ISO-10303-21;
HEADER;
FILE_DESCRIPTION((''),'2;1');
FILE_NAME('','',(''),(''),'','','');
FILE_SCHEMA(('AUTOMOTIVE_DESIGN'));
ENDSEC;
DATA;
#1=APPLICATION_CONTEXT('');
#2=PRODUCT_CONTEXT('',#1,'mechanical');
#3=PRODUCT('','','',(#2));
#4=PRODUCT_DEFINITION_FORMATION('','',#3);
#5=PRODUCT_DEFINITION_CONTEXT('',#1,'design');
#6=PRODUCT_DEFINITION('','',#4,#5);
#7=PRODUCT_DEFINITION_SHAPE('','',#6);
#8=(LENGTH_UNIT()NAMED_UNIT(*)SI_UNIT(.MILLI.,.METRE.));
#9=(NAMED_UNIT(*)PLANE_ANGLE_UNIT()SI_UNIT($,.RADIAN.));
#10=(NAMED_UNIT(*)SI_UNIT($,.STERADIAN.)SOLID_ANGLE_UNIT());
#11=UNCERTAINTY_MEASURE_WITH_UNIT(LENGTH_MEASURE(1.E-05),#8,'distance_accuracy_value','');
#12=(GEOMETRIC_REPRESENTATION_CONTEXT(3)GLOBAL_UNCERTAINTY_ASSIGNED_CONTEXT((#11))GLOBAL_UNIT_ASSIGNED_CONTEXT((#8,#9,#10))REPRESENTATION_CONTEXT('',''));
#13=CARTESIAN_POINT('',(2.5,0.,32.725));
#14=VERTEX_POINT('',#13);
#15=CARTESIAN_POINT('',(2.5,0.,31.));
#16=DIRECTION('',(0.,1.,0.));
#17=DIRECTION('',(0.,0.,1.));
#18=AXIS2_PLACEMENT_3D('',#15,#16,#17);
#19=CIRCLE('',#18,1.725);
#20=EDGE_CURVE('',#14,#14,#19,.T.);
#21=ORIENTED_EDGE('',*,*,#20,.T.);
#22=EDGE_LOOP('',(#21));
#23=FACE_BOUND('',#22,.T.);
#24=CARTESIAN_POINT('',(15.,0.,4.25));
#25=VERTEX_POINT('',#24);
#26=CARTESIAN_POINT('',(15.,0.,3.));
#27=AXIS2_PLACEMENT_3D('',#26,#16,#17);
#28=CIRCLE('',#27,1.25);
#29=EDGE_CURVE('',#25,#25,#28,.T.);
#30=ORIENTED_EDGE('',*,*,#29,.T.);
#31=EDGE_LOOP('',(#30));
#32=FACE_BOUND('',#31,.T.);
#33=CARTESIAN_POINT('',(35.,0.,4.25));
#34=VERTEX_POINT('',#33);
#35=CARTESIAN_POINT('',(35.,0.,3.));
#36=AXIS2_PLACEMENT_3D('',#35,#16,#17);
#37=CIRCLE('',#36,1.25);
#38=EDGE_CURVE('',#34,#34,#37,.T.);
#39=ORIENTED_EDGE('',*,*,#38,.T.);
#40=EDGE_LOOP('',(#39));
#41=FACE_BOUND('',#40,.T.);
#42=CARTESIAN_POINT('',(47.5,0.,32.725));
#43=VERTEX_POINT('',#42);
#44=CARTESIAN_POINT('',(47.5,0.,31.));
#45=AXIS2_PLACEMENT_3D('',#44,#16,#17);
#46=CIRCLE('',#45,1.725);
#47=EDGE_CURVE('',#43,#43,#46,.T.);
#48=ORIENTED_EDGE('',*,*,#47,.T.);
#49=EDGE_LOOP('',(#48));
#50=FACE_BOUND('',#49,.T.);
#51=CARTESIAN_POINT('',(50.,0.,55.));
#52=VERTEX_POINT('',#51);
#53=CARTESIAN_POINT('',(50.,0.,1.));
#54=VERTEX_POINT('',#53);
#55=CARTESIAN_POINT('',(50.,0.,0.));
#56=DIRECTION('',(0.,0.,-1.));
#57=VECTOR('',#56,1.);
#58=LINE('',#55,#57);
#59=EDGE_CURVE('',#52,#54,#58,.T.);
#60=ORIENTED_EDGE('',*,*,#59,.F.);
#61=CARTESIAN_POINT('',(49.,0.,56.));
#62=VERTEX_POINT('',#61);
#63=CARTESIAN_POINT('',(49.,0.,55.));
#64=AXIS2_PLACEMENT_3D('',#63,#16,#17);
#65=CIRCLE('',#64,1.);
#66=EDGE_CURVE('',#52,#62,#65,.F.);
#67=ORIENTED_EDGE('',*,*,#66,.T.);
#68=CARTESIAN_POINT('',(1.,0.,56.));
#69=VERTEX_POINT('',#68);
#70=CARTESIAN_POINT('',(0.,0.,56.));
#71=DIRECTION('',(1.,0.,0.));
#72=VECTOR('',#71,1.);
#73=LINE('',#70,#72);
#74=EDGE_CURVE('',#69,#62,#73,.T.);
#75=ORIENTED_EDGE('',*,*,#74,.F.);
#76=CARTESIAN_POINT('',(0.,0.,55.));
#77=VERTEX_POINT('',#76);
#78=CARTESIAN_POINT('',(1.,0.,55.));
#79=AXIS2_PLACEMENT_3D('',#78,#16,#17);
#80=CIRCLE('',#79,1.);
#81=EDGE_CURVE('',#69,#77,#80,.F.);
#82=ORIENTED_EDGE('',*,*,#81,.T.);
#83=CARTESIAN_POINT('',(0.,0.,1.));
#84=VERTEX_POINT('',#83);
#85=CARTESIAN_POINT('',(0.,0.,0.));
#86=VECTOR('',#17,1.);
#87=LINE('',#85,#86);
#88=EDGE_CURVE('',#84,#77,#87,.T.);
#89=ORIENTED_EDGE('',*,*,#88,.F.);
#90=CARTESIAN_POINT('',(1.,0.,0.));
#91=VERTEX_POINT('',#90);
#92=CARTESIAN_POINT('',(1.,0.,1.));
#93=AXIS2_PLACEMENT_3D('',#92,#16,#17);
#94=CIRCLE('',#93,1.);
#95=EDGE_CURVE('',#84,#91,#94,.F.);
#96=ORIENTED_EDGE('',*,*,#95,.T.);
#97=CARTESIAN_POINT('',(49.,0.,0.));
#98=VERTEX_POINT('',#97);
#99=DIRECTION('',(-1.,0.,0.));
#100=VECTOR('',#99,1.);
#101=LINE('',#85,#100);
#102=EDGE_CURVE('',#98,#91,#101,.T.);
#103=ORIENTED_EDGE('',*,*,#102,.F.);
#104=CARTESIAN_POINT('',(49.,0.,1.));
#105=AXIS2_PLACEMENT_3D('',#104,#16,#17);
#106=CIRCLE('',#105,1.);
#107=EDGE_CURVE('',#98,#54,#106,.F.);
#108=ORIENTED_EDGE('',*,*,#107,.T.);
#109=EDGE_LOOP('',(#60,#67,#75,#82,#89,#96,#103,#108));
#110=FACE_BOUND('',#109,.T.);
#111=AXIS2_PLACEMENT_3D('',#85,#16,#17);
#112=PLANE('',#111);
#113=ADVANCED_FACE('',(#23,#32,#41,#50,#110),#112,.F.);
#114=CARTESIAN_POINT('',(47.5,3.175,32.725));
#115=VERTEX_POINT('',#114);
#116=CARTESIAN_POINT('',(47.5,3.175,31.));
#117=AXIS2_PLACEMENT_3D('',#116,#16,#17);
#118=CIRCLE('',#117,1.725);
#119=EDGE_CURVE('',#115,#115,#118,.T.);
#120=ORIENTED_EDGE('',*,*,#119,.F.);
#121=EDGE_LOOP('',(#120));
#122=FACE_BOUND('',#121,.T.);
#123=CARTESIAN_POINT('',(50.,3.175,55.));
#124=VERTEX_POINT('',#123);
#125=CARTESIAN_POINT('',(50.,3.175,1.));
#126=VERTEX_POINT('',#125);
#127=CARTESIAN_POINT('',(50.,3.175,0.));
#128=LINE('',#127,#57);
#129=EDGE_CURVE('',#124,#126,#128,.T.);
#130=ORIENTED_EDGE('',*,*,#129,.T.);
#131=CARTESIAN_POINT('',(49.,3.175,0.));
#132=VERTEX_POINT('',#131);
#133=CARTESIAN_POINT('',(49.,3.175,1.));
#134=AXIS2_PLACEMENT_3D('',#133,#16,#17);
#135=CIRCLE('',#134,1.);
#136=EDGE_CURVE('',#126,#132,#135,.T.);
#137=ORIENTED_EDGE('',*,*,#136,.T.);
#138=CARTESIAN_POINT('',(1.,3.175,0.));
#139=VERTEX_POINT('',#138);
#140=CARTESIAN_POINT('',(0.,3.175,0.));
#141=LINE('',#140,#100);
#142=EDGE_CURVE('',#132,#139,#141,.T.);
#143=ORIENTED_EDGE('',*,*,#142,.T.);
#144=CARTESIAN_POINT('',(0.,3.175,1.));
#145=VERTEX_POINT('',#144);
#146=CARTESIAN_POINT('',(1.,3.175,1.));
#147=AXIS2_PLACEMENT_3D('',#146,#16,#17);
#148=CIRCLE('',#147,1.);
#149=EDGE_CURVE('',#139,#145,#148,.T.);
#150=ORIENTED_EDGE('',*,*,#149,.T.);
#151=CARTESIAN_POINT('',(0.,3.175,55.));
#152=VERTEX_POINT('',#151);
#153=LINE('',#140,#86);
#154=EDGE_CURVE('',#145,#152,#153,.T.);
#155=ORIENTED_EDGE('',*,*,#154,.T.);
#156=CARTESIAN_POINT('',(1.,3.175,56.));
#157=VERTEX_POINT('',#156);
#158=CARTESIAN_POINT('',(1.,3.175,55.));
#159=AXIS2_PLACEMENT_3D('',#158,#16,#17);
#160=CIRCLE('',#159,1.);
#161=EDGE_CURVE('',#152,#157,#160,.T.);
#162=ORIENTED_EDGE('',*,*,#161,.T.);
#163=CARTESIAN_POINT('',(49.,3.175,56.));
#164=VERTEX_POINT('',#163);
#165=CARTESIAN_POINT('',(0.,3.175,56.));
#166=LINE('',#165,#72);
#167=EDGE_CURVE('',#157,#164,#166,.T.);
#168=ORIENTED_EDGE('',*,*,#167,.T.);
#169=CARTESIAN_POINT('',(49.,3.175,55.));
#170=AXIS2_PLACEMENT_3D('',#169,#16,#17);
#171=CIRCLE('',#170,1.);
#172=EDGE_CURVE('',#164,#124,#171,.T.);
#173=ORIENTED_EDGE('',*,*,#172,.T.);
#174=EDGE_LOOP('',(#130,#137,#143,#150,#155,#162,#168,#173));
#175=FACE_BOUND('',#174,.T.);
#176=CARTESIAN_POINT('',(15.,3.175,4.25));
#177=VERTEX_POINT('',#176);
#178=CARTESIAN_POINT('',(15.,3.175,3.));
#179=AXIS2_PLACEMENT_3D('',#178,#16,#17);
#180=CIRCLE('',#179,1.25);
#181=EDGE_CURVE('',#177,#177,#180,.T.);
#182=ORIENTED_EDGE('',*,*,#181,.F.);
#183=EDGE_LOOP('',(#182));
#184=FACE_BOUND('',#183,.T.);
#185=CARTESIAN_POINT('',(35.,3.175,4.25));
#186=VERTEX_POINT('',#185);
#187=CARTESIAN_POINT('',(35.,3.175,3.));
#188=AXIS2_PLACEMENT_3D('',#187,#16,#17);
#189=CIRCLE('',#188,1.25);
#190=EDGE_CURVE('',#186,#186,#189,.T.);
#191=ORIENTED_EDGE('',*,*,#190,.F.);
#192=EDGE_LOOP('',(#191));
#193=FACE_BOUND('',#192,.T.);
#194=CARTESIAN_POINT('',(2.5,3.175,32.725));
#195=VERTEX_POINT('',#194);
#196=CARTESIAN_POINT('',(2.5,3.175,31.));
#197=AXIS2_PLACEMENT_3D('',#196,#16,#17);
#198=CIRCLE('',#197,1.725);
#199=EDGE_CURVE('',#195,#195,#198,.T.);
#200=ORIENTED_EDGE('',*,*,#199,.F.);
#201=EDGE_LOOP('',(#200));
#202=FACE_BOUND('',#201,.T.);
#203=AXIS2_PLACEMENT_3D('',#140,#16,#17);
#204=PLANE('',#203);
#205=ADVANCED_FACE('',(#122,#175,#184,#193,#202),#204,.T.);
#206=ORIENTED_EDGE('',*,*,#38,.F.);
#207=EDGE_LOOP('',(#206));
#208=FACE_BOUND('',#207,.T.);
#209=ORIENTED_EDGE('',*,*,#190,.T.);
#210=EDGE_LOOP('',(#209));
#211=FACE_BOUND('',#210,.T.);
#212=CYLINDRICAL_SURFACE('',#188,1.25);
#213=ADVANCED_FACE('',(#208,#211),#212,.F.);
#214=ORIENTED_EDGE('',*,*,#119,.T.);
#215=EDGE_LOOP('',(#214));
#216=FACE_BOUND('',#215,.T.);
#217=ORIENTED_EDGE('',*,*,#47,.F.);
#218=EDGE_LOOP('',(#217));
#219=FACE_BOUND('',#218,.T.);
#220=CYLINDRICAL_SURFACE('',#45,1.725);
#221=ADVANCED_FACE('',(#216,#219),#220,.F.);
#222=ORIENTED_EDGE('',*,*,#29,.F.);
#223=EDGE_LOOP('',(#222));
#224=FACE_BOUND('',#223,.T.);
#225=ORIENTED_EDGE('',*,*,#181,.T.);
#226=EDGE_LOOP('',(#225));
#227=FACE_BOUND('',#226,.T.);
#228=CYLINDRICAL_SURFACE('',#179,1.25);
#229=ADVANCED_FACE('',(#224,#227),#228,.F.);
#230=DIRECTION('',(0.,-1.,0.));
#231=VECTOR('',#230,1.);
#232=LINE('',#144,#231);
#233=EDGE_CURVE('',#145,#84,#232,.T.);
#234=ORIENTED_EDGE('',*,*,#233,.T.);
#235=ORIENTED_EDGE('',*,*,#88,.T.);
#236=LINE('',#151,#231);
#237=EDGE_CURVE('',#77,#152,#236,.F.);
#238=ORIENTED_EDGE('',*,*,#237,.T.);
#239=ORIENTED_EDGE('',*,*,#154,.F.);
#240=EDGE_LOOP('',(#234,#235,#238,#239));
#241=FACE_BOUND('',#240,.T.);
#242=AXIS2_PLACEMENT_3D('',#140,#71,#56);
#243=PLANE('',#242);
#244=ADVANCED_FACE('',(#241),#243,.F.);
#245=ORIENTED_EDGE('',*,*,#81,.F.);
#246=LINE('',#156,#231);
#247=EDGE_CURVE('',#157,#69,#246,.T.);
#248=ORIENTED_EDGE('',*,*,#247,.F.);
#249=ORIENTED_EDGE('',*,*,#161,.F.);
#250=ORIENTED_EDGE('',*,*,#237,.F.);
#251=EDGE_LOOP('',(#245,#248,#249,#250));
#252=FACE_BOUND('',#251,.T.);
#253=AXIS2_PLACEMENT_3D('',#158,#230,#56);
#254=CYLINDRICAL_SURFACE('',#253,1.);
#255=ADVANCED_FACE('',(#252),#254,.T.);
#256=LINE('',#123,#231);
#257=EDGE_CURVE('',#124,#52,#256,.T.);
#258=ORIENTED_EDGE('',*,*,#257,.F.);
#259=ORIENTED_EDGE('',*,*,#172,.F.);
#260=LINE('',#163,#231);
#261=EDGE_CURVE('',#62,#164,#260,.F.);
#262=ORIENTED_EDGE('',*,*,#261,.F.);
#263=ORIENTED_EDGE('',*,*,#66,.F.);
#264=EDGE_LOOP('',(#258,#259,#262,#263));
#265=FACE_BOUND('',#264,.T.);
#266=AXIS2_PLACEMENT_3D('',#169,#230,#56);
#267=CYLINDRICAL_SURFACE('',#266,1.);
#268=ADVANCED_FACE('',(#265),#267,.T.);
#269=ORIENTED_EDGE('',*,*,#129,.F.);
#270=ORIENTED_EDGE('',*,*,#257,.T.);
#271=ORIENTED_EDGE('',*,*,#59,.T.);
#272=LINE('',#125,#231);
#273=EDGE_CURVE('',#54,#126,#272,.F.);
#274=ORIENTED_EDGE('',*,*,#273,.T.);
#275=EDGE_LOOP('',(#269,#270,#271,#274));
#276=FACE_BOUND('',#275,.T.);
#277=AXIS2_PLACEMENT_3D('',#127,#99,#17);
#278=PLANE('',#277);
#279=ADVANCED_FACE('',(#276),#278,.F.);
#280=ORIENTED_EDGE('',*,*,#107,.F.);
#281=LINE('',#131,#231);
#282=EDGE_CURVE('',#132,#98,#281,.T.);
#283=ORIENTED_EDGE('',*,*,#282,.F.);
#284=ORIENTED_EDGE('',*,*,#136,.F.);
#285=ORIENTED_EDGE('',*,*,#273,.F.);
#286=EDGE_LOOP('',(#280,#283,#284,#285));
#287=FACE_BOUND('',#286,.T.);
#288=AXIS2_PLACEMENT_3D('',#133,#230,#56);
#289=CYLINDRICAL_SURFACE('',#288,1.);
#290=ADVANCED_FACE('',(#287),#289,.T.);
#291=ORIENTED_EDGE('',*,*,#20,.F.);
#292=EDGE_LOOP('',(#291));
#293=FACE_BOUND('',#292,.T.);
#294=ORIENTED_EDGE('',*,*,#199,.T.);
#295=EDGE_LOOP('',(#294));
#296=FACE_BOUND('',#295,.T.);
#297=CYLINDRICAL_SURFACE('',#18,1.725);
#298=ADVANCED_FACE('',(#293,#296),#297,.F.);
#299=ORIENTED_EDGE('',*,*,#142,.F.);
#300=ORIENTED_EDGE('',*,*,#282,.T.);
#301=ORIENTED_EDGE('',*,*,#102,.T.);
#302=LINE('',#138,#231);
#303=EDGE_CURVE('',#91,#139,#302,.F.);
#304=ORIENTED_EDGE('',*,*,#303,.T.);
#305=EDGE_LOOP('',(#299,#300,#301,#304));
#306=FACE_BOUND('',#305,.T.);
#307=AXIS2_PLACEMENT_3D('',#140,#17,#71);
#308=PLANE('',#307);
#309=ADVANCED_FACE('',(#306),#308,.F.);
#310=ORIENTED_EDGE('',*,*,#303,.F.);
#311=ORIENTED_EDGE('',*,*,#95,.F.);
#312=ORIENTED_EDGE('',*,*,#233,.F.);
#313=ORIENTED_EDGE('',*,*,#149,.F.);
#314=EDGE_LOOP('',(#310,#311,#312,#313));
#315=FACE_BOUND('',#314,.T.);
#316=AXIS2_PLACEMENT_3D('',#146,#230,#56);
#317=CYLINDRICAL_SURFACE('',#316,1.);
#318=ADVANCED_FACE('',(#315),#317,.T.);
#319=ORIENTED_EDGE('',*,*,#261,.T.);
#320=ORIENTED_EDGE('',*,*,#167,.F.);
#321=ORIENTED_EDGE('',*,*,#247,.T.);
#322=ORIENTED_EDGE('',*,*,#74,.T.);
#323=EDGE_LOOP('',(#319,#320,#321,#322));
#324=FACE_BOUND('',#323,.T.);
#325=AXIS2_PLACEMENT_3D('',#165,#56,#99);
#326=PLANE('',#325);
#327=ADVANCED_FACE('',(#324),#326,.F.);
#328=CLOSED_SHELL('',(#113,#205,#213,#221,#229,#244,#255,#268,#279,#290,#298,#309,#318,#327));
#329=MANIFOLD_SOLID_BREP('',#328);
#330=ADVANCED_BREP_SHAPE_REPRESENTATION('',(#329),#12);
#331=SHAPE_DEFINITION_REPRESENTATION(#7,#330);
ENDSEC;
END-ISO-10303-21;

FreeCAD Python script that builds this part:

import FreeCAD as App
import Part
import Sketcher

V = App.Vector


def edges_at(feature, points):
    """Names of the edges that pass closest to the given points."""
    edges = feature.Shape.Edges
    near = lambda p: min(range(len(edges)), key=lambda i: edges[i].distToShape(Part.Vertex(*p))[0])
    return sorted({f"Edge{near(p) + 1}" for p in points})

doc = App.newDocument("Part")
params = doc.addObject("Spreadsheet::Sheet", "Params")
for row, (alias, value) in enumerate([
    ("sketch1_diameter", "2.2 mm"),
    ("sketch1_width", "50 mm"),
    ("sketch1_height", "56 mm"),
    ("pad1_length", "3.175 mm"),
    ("fillet_radius", "1 mm"),
    ("sketch2_diameter", "2.5 mm"),
    ("hole_diameter", "2.5 mm"),
    ("sketch3_diameter", "3.45 mm"),
], start=1):
    params.set(f"A{row}", alias)
    params.set(f"B{row}", "=" + value)
    params.setAlias(f"B{row}", alias)

body = doc.addObject("PartDesign::Body", "Body")

# Sketch on XZ plane
sketch1 = doc.addObject("Sketcher::SketchObject", "Sketch")
body.addObject(sketch1)
sketch1.AttachmentSupport = (doc.XZ_Plane, [""])
sketch1.MapMode = "FlatFace"
sketch1.addGeometry(Part.LineSegment(V(0, 0, 0), V(0, 56, 0)), False)
sketch1.addGeometry(Part.LineSegment(V(0, 56, 0), V(50, 56, 0)), False)
sketch1.addGeometry(Part.LineSegment(V(50, 56, 0), V(50, 0, 0)), False)
sketch1.addGeometry(Part.LineSegment(V(50, 0, 0), V(0, 0, 0)), False)
sketch1.addGeometry(Part.Circle(V(15, 3, 0), V(0, 0, 1), 1.1), False)
sketch1.addGeometry(Part.Circle(V(35, 3, 0), V(0, 0, 1), 1.1), False)
sketch1.addConstraint(Sketcher.Constraint("Coincident", 0, 2, 1, 1))
sketch1.addConstraint(Sketcher.Constraint("Coincident", 1, 2, 2, 1))
sketch1.addConstraint(Sketcher.Constraint("Coincident", 2, 2, 3, 1))
sketch1.addConstraint(Sketcher.Constraint("Coincident", 3, 2, 0, 1))
sketch1.addConstraint(Sketcher.Constraint("Vertical", 0))
sketch1.addConstraint(Sketcher.Constraint("Horizontal", 1))
sketch1.addConstraint(Sketcher.Constraint("Vertical", 2))
sketch1.addConstraint(Sketcher.Constraint("Horizontal", 3))
sketch1.addConstraint(Sketcher.Constraint("Coincident", 3, 2, -1, 1))
sketch1.addConstraint(Sketcher.Constraint("Equal", 4, 5))
sketch1.addConstraint(Sketcher.Constraint("Horizontal", 4, 3, 5, 3))
sketch1.addConstraint(Sketcher.Constraint("Diameter", 4, 2.2))
sketch1.addConstraint(Sketcher.Constraint("DistanceX", 1, 1, 1, 2, 50.0))
sketch1.addConstraint(Sketcher.Constraint("DistanceY", 0, 1, 0, 2, 56.0))
sketch1.addConstraint(Sketcher.Constraint("DistanceX", -1, 1, 4, 3, 15.0))
sketch1.addConstraint(Sketcher.Constraint("DistanceY", -1, 1, 4, 3, 3.0))
sketch1.addConstraint(Sketcher.Constraint("DistanceX", -1, 1, 5, 3, 35.0))
sketch1.setExpression("Constraints[11]", "Params.sketch1_diameter")
sketch1.setExpression("Constraints[12]", "Params.sketch1_width")
sketch1.setExpression("Constraints[13]", "Params.sketch1_height")
pad1 = doc.addObject("PartDesign::Pad", "Pad")
body.addObject(pad1)
pad1.Profile = sketch1
pad1.setExpression("Length", "Params.pad1_length")
pad1.Reversed = True
doc.recompute()

fillet = doc.addObject("PartDesign::Fillet", "Fillet")
body.addObject(fillet)
fillet.Base = (pad1, edges_at(pad1, [
    (0, 1.587, 0),
    (50, 1.587, 0),
    (50, 1.587, 56),
    (0, 1.587, 56),
]))
fillet.setExpression("Radius", "Params.fillet_radius")

# Sketch on XZ plane
sketch2 = doc.addObject("Sketcher::SketchObject", "Sketch001")
body.addObject(sketch2)
sketch2.AttachmentSupport = (doc.XZ_Plane, [""])
sketch2.MapMode = "FlatFace"
sketch2.AttachmentOffset = App.Placement(V(0, 0, -3.175), App.Rotation())
sketch2.addGeometry(Part.Circle(V(15, 3, 0), V(0, 0, 1), 1.2), False)
sketch2.addGeometry(Part.Circle(V(35, 3, 0), V(0, 0, 1), 1.2), False)
sketch2.addConstraint(Sketcher.Constraint("Equal", 0, 1))
sketch2.addConstraint(Sketcher.Constraint("Horizontal", 0, 3, 1, 3))
sketch2.addConstraint(Sketcher.Constraint("Diameter", 0, 2.5))
sketch2.addConstraint(Sketcher.Constraint("DistanceX", -1, 1, 0, 3, 15.0))
sketch2.addConstraint(Sketcher.Constraint("DistanceY", -1, 1, 0, 3, 3.0))
sketch2.addConstraint(Sketcher.Constraint("DistanceX", -1, 1, 1, 3, 35.0))
sketch2.setExpression("Constraints[2]", "Params.sketch2_diameter")
doc.recompute()
hole = doc.addObject("PartDesign::Hole", "Hole")
body.addObject(hole)
hole.Profile = sketch2
hole.ThreadType = "None"
hole.setExpression("Diameter", "Params.hole_diameter")
hole.DepthType = "ThroughAll"
hole.Reversed = True

# Sketch on XZ plane
sketch3 = doc.addObject("Sketcher::SketchObject", "Sketch002")
body.addObject(sketch3)
sketch3.AttachmentSupport = (doc.XZ_Plane, [""])
sketch3.MapMode = "FlatFace"
sketch3.AttachmentOffset = App.Placement(V(0, 0, -3.175), App.Rotation())
sketch3.addGeometry(Part.Circle(V(2.5, 31, 0), V(0, 0, 1), 1.7), False)
sketch3.addGeometry(Part.Circle(V(47.5, 31, 0), V(0, 0, 1), 1.7), False)
sketch3.addConstraint(Sketcher.Constraint("Equal", 0, 1))
sketch3.addConstraint(Sketcher.Constraint("Horizontal", 0, 3, 1, 3))
sketch3.addConstraint(Sketcher.Constraint("Diameter", 0, 3.45))
sketch3.addConstraint(Sketcher.Constraint("DistanceY", -1, 1, 0, 3, 31.0))
sketch3.addConstraint(Sketcher.Constraint("DistanceX", 0, 3, 1, 3, 45.0))
sketch3.addConstraint(Sketcher.Constraint("DistanceX", -1, 1, 0, 3, 2.5))
sketch3.setExpression("Constraints[2]", "Params.sketch3_diameter")
pocket1 = doc.addObject("PartDesign::Pocket", "Pocket")
body.addObject(pocket1)
pocket1.Profile = sketch3
pocket1.Type = "ThroughAll"
pocket1.Midplane = True

doc.recompute()
